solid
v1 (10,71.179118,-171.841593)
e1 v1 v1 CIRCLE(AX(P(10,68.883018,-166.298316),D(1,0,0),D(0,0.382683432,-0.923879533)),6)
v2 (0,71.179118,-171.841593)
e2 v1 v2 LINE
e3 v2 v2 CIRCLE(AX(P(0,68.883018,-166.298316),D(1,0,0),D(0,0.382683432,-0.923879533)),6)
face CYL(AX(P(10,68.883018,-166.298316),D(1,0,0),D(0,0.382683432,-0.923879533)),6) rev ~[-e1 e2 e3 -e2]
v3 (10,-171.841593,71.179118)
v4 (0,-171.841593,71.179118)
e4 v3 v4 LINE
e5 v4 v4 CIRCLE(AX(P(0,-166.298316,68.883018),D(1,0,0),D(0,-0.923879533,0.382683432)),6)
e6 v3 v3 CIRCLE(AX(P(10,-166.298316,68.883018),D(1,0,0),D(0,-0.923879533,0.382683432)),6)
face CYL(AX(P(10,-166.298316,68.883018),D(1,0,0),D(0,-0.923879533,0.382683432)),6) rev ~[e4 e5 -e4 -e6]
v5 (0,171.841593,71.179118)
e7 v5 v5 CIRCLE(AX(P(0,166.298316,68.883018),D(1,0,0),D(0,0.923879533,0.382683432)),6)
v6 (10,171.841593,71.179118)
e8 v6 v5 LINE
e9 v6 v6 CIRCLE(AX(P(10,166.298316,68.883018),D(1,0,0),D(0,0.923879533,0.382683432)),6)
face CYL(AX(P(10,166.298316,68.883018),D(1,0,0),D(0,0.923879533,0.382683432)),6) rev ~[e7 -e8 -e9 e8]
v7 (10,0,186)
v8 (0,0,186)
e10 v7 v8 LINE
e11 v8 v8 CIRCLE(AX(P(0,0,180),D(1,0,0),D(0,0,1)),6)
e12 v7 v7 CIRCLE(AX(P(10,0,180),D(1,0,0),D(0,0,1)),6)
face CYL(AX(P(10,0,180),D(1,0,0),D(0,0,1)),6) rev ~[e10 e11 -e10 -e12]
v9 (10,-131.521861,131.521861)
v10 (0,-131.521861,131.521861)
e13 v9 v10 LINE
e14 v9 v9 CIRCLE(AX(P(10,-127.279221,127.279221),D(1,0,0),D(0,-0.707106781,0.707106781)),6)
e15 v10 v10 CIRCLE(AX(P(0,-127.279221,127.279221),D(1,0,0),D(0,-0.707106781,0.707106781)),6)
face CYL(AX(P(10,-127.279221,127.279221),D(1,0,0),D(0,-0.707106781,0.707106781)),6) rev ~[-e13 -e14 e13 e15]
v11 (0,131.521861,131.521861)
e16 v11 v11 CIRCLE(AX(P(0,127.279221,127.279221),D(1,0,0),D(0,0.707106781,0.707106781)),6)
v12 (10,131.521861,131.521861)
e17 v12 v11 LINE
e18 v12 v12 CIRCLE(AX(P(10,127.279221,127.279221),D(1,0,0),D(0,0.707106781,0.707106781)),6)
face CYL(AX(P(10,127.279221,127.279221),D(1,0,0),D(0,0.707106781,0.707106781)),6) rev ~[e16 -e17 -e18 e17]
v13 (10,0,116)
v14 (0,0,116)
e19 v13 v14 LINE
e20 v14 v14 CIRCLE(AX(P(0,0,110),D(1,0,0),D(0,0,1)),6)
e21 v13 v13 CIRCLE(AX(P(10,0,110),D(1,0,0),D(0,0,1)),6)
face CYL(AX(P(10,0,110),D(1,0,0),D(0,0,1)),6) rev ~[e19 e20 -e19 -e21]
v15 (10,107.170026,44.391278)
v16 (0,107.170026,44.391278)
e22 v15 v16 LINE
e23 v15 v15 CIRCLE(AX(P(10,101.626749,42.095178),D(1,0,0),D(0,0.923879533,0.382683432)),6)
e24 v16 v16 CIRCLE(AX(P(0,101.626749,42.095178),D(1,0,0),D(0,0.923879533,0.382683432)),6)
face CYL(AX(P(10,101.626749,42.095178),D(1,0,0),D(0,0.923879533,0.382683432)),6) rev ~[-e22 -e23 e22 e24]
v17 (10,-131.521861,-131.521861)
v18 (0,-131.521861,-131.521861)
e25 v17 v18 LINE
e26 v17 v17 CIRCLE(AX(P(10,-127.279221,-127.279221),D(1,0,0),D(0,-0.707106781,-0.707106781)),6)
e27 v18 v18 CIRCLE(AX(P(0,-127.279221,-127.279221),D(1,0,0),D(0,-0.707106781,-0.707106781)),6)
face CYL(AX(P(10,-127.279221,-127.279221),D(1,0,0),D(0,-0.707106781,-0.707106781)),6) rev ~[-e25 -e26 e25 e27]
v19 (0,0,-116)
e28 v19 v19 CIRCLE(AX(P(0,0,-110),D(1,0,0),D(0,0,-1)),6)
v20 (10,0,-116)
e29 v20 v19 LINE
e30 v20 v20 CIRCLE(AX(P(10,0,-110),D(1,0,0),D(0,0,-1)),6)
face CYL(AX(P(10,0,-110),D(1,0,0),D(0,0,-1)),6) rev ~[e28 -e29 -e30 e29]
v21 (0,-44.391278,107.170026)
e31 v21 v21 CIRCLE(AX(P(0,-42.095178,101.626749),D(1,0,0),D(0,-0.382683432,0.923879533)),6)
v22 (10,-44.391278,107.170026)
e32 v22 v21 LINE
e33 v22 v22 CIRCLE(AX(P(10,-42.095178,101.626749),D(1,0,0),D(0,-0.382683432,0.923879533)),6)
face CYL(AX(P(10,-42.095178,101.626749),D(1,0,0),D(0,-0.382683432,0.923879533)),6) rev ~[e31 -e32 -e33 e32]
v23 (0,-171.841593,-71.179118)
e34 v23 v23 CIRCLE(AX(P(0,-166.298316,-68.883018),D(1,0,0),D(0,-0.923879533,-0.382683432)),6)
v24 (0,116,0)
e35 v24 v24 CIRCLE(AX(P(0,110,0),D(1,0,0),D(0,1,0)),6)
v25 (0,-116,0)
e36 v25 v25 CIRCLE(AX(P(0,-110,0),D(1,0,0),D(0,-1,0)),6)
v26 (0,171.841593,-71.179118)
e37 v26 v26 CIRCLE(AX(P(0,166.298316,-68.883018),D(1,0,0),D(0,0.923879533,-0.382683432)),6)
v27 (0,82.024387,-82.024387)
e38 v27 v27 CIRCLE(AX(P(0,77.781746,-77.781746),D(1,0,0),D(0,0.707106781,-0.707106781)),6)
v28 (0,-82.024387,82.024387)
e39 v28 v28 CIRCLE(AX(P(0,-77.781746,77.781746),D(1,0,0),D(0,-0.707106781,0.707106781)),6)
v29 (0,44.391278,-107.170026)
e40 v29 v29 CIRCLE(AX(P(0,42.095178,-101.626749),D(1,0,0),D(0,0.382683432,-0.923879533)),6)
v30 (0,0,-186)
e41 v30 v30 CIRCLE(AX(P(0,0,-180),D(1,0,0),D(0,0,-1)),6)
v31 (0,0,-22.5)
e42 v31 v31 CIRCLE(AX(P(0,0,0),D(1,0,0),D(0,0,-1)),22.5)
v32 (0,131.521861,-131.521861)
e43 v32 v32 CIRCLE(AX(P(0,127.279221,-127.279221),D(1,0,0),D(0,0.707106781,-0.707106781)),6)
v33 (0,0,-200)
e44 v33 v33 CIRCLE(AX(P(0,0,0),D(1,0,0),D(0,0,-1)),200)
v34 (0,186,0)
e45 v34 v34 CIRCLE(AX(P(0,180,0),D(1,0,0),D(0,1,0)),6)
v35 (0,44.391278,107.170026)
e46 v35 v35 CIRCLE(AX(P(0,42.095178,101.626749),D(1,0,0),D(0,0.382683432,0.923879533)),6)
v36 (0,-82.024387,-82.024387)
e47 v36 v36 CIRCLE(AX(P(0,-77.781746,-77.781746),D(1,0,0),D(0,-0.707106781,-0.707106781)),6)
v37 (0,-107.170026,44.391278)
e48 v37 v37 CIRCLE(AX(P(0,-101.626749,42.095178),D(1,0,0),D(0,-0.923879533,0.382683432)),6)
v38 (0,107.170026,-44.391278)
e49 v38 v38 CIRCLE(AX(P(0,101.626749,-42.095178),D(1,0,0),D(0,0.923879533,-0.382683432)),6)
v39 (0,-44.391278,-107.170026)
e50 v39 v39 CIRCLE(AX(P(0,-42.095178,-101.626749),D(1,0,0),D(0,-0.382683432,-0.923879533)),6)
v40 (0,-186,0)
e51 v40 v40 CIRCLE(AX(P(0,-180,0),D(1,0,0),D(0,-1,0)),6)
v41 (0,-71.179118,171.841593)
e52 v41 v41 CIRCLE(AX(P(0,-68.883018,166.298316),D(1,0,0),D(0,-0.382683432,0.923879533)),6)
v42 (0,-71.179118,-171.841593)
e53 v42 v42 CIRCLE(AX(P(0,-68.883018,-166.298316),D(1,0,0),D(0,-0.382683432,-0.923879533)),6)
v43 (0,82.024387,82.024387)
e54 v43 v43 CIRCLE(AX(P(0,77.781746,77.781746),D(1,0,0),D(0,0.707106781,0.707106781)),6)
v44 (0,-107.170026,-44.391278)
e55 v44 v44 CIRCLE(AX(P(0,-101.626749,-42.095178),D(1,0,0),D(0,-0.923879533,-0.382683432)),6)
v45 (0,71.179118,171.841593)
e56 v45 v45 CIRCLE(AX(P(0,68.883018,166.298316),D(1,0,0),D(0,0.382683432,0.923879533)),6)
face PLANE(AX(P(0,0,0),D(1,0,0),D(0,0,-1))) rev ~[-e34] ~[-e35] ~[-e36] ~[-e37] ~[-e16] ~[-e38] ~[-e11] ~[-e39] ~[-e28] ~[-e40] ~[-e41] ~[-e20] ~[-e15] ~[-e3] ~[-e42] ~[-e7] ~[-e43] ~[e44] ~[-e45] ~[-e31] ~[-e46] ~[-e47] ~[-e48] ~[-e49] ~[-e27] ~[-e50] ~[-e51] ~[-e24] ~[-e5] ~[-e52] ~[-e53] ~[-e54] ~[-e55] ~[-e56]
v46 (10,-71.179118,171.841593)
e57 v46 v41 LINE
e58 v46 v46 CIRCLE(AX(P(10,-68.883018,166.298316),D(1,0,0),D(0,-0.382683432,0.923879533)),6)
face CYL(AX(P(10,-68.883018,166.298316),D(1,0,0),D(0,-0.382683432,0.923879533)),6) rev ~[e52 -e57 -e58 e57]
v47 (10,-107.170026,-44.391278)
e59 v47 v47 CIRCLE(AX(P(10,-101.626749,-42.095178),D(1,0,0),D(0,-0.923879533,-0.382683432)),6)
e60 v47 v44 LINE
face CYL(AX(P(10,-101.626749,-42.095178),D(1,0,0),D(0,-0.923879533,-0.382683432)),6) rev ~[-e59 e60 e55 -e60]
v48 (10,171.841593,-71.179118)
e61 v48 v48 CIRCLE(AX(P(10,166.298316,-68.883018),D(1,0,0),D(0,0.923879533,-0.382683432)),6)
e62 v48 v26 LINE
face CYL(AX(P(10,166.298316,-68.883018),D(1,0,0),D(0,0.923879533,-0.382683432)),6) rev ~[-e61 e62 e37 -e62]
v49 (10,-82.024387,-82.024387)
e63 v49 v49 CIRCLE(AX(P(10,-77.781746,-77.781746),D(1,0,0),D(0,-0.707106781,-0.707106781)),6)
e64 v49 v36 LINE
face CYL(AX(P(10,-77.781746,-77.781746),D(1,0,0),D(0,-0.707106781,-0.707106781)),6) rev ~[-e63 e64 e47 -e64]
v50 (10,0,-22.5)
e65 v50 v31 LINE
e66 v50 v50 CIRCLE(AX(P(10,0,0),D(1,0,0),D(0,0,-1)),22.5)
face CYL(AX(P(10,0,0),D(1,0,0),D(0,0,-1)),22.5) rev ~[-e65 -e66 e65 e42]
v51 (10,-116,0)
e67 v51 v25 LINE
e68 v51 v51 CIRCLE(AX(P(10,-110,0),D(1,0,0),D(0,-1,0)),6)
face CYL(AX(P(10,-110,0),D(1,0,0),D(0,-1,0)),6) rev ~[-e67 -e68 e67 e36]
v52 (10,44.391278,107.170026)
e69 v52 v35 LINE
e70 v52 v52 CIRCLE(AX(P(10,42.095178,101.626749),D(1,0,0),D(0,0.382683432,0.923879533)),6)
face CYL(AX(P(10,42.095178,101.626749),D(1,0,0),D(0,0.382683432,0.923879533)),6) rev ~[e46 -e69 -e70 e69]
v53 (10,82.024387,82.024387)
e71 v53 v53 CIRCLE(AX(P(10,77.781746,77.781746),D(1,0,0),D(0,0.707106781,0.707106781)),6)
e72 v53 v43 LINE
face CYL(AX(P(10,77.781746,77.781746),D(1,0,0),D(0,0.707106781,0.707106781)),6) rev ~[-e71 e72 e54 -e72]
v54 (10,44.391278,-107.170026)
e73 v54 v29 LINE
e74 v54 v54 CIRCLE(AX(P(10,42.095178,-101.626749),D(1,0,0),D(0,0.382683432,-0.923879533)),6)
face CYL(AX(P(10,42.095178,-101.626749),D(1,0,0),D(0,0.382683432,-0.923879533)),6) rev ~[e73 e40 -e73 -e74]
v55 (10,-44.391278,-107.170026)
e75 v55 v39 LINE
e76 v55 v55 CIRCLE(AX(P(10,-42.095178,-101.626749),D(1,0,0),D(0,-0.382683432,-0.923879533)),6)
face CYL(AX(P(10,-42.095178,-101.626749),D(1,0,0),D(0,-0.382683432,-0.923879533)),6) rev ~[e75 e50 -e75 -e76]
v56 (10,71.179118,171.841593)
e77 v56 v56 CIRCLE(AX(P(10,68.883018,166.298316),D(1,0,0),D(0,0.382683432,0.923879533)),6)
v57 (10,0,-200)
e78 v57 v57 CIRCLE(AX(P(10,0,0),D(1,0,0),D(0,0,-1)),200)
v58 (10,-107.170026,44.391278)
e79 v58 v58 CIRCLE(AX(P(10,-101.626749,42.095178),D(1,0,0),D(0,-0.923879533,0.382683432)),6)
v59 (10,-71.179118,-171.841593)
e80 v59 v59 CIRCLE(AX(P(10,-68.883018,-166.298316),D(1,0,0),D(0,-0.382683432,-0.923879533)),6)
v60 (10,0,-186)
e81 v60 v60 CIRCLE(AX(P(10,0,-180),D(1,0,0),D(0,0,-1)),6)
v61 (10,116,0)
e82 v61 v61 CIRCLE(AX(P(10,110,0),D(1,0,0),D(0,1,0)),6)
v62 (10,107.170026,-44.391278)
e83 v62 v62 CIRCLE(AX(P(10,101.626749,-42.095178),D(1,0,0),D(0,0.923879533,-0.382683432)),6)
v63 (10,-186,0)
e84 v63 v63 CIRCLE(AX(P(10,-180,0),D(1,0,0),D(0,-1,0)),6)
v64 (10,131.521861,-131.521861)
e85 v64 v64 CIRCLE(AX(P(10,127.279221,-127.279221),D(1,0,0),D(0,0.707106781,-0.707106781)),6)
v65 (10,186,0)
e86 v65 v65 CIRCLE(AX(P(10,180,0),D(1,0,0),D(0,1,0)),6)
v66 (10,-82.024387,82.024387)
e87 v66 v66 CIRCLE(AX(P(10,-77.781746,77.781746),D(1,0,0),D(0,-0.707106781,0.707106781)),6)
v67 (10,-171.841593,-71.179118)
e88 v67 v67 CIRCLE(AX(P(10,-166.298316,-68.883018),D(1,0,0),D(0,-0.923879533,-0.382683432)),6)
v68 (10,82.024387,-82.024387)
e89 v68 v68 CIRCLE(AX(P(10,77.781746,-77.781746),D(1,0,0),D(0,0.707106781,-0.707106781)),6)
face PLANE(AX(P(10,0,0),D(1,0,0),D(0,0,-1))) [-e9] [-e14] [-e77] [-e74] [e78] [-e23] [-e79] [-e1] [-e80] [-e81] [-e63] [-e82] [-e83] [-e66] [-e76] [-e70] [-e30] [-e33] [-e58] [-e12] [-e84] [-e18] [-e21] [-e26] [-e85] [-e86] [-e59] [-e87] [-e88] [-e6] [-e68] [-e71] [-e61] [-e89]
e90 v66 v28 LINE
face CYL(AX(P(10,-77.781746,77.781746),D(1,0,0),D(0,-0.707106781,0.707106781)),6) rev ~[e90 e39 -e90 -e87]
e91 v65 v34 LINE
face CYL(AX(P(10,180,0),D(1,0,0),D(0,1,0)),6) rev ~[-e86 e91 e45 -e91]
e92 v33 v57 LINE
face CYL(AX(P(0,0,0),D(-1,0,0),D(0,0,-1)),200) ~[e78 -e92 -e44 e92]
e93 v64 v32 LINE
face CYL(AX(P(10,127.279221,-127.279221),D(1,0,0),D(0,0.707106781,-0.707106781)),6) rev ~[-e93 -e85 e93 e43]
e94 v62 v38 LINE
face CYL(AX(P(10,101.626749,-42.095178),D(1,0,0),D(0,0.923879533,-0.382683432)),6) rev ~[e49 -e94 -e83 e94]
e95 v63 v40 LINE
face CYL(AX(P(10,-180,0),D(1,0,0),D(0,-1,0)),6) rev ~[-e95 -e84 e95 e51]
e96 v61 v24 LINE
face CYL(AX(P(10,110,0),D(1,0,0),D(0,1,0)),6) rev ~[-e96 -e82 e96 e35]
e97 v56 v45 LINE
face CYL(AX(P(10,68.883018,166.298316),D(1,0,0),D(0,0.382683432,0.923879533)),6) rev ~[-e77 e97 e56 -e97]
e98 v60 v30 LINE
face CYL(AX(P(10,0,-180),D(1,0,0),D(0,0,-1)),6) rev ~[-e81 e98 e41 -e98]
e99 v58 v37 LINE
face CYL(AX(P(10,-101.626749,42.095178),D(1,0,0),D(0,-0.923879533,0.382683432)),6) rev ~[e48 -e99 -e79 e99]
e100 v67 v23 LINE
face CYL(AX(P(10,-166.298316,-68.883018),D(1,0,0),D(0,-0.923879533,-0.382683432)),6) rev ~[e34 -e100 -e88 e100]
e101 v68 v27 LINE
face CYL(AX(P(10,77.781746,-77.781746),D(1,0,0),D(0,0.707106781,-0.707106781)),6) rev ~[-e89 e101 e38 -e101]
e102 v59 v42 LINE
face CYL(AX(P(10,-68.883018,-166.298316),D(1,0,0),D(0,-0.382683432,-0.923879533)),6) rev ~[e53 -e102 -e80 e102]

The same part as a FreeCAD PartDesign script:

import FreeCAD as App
import Part
import Sketcher
Q = App.Units.Quantity

doc = App.newDocument("Part")
body = doc.addObject("PartDesign::Body", "Body")

# Sketch on YZ plane
sketch1 = doc.addObject("Sketcher::SketchObject", "Sketch")
body.addObject(sketch1)
sketch1.AttachmentSupport = (doc.YZ_Plane, [""])
sketch1.MapMode = "FlatFace"
sketch1.addGeometry(Part.Circle(App.Vector(0, 0, 0), App.Vector(0, 0, 1), 200), False)
sketch1.addConstraint(Sketcher.Constraint("Coincident", 0, 3, -1, 1))
sketch1.addConstraint(Sketcher.Constraint("Diameter", 0, Q("400 mm")))
pad1 = doc.addObject("PartDesign::Pad", "Pad")
body.addObject(pad1)
pad1.Profile = sketch1
pad1.Length = 10

# Sketch on YZ plane
sketch2 = doc.addObject("Sketcher::SketchObject", "Sketch001")
body.addObject(sketch2)
sketch2.AttachmentSupport = (doc.YZ_Plane, [""])
sketch2.MapMode = "FlatFace"
sketch2.AttachmentOffset = App.Placement(App.Vector(0, 0, 10), App.Rotation())
sketch2.addGeometry(Part.Circle(App.Vector(0, 0, 0), App.Vector(0, 0, 1), 22.5), False)
sketch2.addConstraint(Sketcher.Constraint("Coincident", 0, 3, -1, 1))
sketch2.addConstraint(Sketcher.Constraint("Diameter", 0, Q("45 mm")))
pocket1 = doc.addObject("PartDesign::Pocket", "Pocket")
body.addObject(pocket1)
pocket1.Profile = sketch2
pocket1.Length = 10

# Sketch on YZ plane
sketch3 = doc.addObject("Sketcher::SketchObject", "Sketch002")
body.addObject(sketch3)
sketch3.AttachmentSupport = (doc.YZ_Plane, [""])
sketch3.MapMode = "FlatFace"
sketch3.AttachmentOffset = App.Placement(App.Vector(0, 0, 10), App.Rotation())
sketch3.addGeometry(Part.Circle(App.Vector(0, -110, 0), App.Vector(0, 0, 1), 6), False)
sketch3.addConstraint(Sketcher.Constraint("PointOnObject", 0, 3, -2))
sketch3.addConstraint(Sketcher.Constraint("Diameter", 0, Q("12 mm")))
sketch3.addConstraint(Sketcher.Constraint("DistanceY", 0, 3, -1, 1, Q("110 mm")))
pocket2 = doc.addObject("PartDesign::Pocket", "Pocket001")
body.addObject(pocket2)
pocket2.Profile = sketch3
pocket2.Length = 10
doc.recompute()

polarpattern = doc.addObject("PartDesign::PolarPattern", "PolarPattern")
body.addObject(polarpattern)
polarpattern.Originals = [pocket2]
polarpattern.Axis = (doc.X_Axis, [""])
polarpattern.Angle = 360
polarpattern.Occurrences = 16
body.Tip = polarpattern

# Sketch on YZ plane
sketch4 = doc.addObject("Sketcher::SketchObject", "Sketch003")
body.addObject(sketch4)
sketch4.AttachmentSupport = (doc.YZ_Plane, [""])
sketch4.MapMode = "FlatFace"
sketch4.AttachmentOffset = App.Placement(App.Vector(0, 0, 10), App.Rotation())
sketch4.addGeometry(Part.Circle(App.Vector(0, -180, 0), App.Vector(0, 0, 1), 6), False)
sketch4.addConstraint(Sketcher.Constraint("PointOnObject", 0, 3, -2))
sketch4.addConstraint(Sketcher.Constraint("Diameter", 0, Q("12 mm")))
sketch4.addConstraint(Sketcher.Constraint("DistanceY", 0, 3, -1, 1, Q("180 mm")))
pocket3 = doc.addObject("PartDesign::Pocket", "Pocket002")
body.addObject(pocket3)
pocket3.Profile = sketch4
pocket3.Length = 10
doc.recompute()

polarpattern2 = doc.addObject("PartDesign::PolarPattern", "PolarPattern001")
body.addObject(polarpattern2)
polarpattern2.Originals = [pocket3]
polarpattern2.Axis = (doc.X_Axis, [""])
polarpattern2.Angle = 360
polarpattern2.Occurrences = 16
body.Tip = polarpattern2

doc.recompute()
